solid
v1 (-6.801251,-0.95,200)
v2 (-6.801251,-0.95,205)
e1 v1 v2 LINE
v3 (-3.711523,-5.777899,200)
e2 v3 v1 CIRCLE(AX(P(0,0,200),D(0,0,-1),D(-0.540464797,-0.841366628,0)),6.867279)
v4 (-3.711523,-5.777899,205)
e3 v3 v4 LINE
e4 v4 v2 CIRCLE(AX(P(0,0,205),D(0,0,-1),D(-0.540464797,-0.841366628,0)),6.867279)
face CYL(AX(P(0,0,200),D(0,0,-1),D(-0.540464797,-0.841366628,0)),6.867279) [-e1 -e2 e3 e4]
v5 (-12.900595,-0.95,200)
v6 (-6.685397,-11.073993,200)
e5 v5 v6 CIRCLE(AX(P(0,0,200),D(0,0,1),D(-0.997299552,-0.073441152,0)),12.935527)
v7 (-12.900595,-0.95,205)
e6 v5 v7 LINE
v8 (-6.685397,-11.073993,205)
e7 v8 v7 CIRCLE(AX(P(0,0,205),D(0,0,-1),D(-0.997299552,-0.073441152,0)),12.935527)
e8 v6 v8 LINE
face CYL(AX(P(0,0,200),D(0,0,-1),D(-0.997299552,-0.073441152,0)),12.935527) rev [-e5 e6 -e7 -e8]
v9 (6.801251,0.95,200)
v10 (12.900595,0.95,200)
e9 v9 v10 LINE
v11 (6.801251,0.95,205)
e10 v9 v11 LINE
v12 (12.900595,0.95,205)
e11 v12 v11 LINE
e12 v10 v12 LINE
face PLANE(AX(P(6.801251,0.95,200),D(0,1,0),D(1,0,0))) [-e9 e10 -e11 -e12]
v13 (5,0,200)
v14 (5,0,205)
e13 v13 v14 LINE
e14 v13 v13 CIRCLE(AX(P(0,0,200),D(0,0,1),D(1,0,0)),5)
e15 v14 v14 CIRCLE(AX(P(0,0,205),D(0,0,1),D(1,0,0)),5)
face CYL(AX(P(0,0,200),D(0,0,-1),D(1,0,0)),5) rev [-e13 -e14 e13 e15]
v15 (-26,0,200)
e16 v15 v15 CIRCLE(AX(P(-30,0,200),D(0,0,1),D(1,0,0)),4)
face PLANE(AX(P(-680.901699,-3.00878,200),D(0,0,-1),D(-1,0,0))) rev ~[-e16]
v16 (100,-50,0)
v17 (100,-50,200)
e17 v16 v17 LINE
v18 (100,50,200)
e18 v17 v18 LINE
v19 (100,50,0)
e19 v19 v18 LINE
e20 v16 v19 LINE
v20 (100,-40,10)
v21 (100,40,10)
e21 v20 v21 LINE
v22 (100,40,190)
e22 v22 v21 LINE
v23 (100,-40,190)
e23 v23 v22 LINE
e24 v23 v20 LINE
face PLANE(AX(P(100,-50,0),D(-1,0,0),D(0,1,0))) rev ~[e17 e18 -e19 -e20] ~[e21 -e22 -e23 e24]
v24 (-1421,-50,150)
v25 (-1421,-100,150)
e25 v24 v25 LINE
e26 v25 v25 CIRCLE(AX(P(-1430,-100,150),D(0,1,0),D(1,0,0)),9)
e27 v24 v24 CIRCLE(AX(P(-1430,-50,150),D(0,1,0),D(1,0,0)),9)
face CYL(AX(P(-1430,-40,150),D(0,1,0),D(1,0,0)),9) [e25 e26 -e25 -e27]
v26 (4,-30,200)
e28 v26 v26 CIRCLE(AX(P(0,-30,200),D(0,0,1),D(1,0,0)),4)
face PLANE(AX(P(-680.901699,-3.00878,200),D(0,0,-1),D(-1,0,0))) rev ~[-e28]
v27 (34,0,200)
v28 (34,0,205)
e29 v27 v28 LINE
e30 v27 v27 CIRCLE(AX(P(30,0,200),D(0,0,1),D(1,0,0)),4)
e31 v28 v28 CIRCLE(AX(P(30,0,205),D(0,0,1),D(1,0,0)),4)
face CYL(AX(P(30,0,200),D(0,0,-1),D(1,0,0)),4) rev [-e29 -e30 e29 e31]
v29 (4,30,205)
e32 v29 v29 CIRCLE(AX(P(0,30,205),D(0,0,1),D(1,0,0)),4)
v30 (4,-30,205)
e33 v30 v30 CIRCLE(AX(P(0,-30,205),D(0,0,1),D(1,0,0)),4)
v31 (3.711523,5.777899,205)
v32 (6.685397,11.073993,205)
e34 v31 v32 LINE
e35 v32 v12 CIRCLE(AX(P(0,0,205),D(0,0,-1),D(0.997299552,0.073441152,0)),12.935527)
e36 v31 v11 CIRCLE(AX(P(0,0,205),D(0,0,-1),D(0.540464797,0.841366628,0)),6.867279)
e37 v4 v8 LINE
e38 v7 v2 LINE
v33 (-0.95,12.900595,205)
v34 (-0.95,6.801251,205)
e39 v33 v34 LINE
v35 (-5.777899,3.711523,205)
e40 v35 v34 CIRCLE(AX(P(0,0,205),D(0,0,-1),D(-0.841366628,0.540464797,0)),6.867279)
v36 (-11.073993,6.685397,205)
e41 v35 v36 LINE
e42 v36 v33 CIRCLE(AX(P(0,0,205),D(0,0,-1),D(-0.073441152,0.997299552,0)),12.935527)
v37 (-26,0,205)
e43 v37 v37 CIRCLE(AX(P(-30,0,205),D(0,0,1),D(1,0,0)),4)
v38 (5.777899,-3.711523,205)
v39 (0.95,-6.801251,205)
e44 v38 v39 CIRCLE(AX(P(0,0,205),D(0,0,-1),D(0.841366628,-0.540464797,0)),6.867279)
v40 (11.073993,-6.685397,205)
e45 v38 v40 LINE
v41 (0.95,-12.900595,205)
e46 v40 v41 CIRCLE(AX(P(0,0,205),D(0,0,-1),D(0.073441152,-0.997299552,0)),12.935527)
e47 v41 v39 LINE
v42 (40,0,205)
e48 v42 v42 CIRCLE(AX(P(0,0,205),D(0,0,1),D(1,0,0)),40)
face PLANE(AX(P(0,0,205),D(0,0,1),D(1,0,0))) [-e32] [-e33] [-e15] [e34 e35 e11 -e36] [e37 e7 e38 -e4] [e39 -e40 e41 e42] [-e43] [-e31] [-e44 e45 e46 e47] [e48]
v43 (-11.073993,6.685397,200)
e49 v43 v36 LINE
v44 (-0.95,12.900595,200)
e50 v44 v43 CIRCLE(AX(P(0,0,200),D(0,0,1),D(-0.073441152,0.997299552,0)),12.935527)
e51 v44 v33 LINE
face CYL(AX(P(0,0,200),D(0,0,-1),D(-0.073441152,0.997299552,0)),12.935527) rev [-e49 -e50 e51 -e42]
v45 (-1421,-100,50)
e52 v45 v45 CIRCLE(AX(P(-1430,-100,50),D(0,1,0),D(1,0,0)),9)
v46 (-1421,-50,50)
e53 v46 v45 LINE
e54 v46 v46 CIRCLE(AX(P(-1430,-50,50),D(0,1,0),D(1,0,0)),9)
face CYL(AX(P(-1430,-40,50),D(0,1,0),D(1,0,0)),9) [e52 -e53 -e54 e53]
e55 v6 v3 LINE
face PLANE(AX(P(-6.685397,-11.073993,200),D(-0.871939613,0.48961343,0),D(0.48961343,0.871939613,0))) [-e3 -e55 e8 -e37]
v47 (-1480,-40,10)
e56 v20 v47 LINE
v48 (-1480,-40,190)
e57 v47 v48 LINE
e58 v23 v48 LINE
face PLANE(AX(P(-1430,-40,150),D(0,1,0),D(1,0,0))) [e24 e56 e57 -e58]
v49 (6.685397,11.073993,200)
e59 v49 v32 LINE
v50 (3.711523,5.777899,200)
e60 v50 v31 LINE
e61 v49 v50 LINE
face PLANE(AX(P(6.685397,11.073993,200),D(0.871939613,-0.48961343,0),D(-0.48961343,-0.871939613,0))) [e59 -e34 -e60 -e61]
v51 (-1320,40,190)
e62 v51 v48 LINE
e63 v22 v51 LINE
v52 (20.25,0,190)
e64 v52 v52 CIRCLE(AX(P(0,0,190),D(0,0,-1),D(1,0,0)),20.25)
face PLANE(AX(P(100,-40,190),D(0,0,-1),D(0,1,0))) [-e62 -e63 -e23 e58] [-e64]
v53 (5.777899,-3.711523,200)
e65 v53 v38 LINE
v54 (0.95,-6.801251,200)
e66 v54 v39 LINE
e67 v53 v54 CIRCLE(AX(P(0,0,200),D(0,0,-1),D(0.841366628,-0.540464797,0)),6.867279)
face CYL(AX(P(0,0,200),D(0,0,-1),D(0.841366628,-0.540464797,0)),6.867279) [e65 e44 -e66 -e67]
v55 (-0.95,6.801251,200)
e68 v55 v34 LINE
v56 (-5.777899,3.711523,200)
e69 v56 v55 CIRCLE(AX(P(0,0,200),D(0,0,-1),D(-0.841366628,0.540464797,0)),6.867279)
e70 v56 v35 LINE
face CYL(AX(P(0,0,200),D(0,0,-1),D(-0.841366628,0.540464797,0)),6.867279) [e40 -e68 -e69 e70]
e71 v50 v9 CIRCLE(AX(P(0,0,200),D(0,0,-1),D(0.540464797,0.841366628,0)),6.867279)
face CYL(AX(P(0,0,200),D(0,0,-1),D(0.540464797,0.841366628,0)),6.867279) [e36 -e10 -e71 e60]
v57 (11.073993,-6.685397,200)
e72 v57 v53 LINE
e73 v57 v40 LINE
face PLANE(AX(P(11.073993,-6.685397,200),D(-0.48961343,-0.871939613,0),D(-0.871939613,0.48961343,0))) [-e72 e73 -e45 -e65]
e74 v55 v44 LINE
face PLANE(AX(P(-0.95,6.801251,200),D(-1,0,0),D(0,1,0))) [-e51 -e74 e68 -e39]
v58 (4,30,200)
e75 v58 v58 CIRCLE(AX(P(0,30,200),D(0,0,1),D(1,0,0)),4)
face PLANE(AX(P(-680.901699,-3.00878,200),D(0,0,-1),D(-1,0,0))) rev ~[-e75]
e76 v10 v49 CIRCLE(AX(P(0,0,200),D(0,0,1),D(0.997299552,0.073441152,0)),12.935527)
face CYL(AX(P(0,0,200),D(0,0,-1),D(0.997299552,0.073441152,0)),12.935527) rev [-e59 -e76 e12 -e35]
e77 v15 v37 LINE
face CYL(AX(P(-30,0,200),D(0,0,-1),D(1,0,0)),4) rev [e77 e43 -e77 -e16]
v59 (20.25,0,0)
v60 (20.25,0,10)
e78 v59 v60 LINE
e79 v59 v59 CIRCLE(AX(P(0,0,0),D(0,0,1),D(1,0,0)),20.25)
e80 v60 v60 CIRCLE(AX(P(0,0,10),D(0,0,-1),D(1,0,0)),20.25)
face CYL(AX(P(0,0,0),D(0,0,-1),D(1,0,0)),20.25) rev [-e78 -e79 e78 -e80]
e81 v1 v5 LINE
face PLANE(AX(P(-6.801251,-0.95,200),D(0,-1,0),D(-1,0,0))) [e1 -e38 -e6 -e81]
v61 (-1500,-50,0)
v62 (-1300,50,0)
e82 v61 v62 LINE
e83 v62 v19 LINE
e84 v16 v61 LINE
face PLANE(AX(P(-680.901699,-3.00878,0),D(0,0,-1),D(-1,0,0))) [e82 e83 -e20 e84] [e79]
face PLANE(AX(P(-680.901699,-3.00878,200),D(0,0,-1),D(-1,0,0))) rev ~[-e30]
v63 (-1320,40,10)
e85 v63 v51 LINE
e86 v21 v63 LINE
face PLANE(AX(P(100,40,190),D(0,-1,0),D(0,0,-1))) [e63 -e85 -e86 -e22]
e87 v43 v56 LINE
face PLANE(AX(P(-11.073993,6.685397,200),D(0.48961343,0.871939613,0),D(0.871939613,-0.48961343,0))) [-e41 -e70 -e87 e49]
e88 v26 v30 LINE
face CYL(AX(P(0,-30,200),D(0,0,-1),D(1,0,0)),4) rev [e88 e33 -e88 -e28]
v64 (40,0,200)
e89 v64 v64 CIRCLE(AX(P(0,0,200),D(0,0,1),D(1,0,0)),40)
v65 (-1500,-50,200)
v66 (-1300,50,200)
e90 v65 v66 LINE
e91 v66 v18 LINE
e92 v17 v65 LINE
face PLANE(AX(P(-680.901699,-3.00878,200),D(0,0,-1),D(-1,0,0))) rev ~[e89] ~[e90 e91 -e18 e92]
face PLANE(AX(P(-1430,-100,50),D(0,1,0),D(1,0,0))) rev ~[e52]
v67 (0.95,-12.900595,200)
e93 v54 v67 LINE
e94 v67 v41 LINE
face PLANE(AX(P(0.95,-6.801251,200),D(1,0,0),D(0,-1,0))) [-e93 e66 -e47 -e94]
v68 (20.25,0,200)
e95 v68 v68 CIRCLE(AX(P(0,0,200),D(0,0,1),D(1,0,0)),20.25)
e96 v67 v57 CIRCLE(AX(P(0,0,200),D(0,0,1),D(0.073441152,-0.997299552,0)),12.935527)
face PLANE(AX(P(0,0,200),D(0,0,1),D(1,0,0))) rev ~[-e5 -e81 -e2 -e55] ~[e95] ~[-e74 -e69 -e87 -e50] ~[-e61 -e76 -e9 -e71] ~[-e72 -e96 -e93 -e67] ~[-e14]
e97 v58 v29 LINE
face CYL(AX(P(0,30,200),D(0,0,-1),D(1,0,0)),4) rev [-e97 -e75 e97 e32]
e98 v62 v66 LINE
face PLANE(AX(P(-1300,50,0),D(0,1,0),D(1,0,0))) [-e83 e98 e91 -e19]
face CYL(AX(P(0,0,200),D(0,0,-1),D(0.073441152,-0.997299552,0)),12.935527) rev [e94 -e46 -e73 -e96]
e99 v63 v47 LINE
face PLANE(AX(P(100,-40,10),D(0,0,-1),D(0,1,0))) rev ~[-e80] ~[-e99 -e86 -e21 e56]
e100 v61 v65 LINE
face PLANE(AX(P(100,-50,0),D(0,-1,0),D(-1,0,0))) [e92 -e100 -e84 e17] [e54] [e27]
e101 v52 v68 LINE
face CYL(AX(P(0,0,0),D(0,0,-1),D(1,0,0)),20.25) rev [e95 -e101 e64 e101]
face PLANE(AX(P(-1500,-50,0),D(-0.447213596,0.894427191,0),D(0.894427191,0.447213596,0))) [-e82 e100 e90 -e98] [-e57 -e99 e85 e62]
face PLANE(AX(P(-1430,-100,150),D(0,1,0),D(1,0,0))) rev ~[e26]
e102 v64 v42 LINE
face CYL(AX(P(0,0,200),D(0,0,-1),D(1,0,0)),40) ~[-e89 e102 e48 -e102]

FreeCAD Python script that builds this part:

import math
import FreeCAD as App
import Part
import Sketcher
from FreeCAD import Vector
Q = App.Units.Quantity


def add_polygon(sketch, points):
    """Adds a closed chain of lines whose ends are joined by coincident constraints."""
    first, n = sketch.GeometryCount, len(points)
    for a, b in zip(points, points[1:] + points[:1]):
        sketch.addGeometry(Part.LineSegment(App.Vector(*a, 0), App.Vector(*b, 0)), False)
    for i in range(n):
        sketch.addConstraint(Sketcher.Constraint("Coincident", first + i, 2, first + (i + 1) % n, 1))

doc = App.newDocument("Part")
body = doc.addObject("PartDesign::Body", "Body")

# Sketch on XY plane
sketch1 = body.newObject("Sketcher::SketchObject", "Sketch")
sketch1.AttachmentSupport = (doc.getObject("XY_Plane"), [""])
sketch1.MapMode = "FlatFace"
add_polygon(sketch1, [(100, -50), (100, 50), (-1300, 50), (-1500, -50)])  # lines 0-3
sketch1.addGeometry(Part.Circle(Vector(0, 0, 0), Vector(0, 0, 1), 20), False)  # 4
sketch1.addConstraint([
    Sketcher.Constraint("Vertical", 0),
    Sketcher.Constraint("Horizontal", 1),
    Sketcher.Constraint("Horizontal", 3),
    Sketcher.Constraint("Coincident", 4, 3, -1, 1),
    Sketcher.Constraint("Diameter", 4, Q("40.5 mm")),
    Sketcher.Constraint("DistanceX", 1, 2, 1, 1, Q("1400 mm")),
    Sketcher.Constraint("DistanceX", 3, 1, 3, 2, Q("1600 mm")),
    Sketcher.Constraint("DistanceY", 0, 1, 0, 2, Q("100 mm")),
    Sketcher.Constraint("DistanceX", -1, 1, 0, 2, Q("100 mm")),
    Sketcher.Constraint("DistanceY", -1, 1, 0, 2, Q("50 mm")),
])
pad1 = body.newObject("PartDesign::Pad", "Pad")
pad1.Profile = sketch1
pad1.Length = 200

# Sketch on XY plane
sketch2 = body.newObject("Sketcher::SketchObject", "Sketch001")
sketch2.AttachmentSupport = (doc.getObject("XY_Plane"), [""])
sketch2.MapMode = "FlatFace"
sketch2.AttachmentOffset = App.Placement(Vector(0, 0, 200), App.Rotation())
sketch2.addGeometry([
    Part.Circle(Vector(0, 0, 0), Vector(0, 0, 1), 40),  # 0
    Part.Circle(Vector(0, -30, 0), Vector(0, 0, 1), 4),  # 1
    Part.Circle(Vector(-30, 0, 0), Vector(0, 0, 1), 4),  # 2
    Part.Circle(Vector(0, 0, 0), Vector(0, 0, 1), 5),  # 3
    Part.Circle(Vector(30, 0, 0), Vector(0, 0, 1), 4),  # 4
    Part.Circle(Vector(0, 30, 0), Vector(0, 0, 1), 4),  # 5
], False)
sketch2.addConstraint([
    Sketcher.Constraint("Coincident", 0, 3, -1, 1),
    Sketcher.Constraint("Coincident", 3, 3, -1, 1),
    Sketcher.Constraint("Equal", 1, 2),
    Sketcher.Constraint("Equal", 2, 4),
    Sketcher.Constraint("Equal", 4, 5),
    Sketcher.Constraint("Symmetric", 2, 3, 4, 3, -1, 1),
    Sketcher.Constraint("Symmetric", 1, 3, 5, 3, -1, 1),
    Sketcher.Constraint("PointOnObject", 1, 3, -2),
    Sketcher.Constraint("PointOnObject", 2, 3, -1),
    Sketcher.Constraint("Diameter", 0, Q("80 mm")),
    Sketcher.Constraint("Diameter", 1, Q("8 mm")),
    Sketcher.Constraint("Diameter", 3, Q("10 mm")),
    Sketcher.Constraint("DistanceY", 1, 3, -1, 1, Q("30 mm")),
    Sketcher.Constraint("DistanceX", 2, 3, -1, 1, Q("30 mm")),
])
pad2 = body.newObject("PartDesign::Pad", "Pad001")
pad2.Profile = sketch2
pad2.Length = 5

# Sketch on XY plane
sketch3 = body.newObject("Sketcher::SketchObject", "Sketch002")
sketch3.AttachmentSupport = (doc.getObject("XY_Plane"), [""])
sketch3.MapMode = "FlatFace"
sketch3.AttachmentOffset = App.Placement(Vector(0, 0, 200), App.Rotation())
sketch3.addGeometry([
    Part.LineSegment(Vector(-1, 7, 0), Vector(-1, 13, 0)),  # 0
    Part.ArcOfCircle(Part.Circle(Vector(0, 0, 0), Vector(0, 0, 1), 13), math.radians(94), math.radians(149)),  # 1
    Part.LineSegment(Vector(-11, 7, 0), Vector(-6, 4, 0)),  # 2
    Part.ArcOfCircle(Part.Circle(Vector(0, 0, 0), Vector(0, 0, 1), 7), math.radians(98), math.radians(147)),  # 3
    Part.LineSegment(Vector(7, 1, 0), Vector(13, 1, 0)),  # 4
    Part.ArcOfCircle(Part.Circle(Vector(0, 0, 0), Vector(0, 0, 1), 13), math.radians(4), math.radians(59)),  # 5
    Part.LineSegment(Vector(7, 11, 0), Vector(4, 6, 0)),  # 6
    Part.ArcOfCircle(Part.Circle(Vector(0, 0, 0), Vector(0, 0, 1), 7), math.radians(8), math.radians(57)),  # 7
    Part.LineSegment(Vector(1, -7, 0), Vector(1, -13, 0)),  # 8
    Part.ArcOfCircle(Part.Circle(Vector(0, 0, 0), Vector(0, 0, 1), 13), math.radians(-86), math.radians(-31)),  # 9
    Part.LineSegment(Vector(11, -7, 0), Vector(6, -4, 0)),  # 10
    Part.ArcOfCircle(Part.Circle(Vector(0, 0, 0), Vector(0, 0, 1), 7), math.radians(-82), math.radians(-33)),  # 11
    Part.LineSegment(Vector(-7, -1, 0), Vector(-13, -1, 0)),  # 12
    Part.ArcOfCircle(Part.Circle(Vector(0, 0, 0), Vector(0, 0, 1), 13), math.radians(-176), math.radians(-121)),  # 13
    Part.LineSegment(Vector(-7, -11, 0), Vector(-4, -6, 0)),  # 14
    Part.ArcOfCircle(Part.Circle(Vector(0, 0, 0), Vector(0, 0, 1), 7), math.radians(-172), math.radians(-123)),  # 15
], False)
sketch3.addConstraint([
    Sketcher.Constraint("Coincident", 0, 2, 1, 1),
    Sketcher.Constraint("Coincident", 1, 2, 2, 1),
    Sketcher.Constraint("Coincident", 2, 2, 3, 2),
    Sketcher.Constraint("Coincident", 3, 1, 0, 1),
    Sketcher.Constraint("Coincident", 4, 2, 5, 1),
    Sketcher.Constraint("Coincident", 5, 2, 6, 1),
    Sketcher.Constraint("Coincident", 6, 2, 7, 2),
    Sketcher.Constraint("Coincident", 7, 1, 4, 1),
    Sketcher.Constraint("Coincident", 8, 2, 9, 1),
    Sketcher.Constraint("Coincident", 9, 2, 10, 1),
    Sketcher.Constraint("Coincident", 10, 2, 11, 2),
    Sketcher.Constraint("Coincident", 11, 1, 8, 1),
    Sketcher.Constraint("Coincident", 12, 2, 13, 1),
    Sketcher.Constraint("Coincident", 13, 2, 14, 1),
    Sketcher.Constraint("Coincident", 14, 2, 15, 2),
    Sketcher.Constraint("Coincident", 15, 1, 12, 1),
    Sketcher.Constraint("Vertical", 0),
    Sketcher.Constraint("Horizontal", 4),
    Sketcher.Constraint("Vertical", 8),
    Sketcher.Constraint("Horizontal", 12),
    Sketcher.Constraint("Coincident", 1, 3, -1, 1),
    Sketcher.Constraint("Coincident", 3, 3, -1, 1),
    Sketcher.Constraint("Coincident", 5, 3, -1, 1),
    Sketcher.Constraint("Coincident", 7, 3, -1, 1),
    Sketcher.Constraint("Coincident", 9, 3, -1, 1),
    Sketcher.Constraint("Coincident", 11, 3, -1, 1),
    Sketcher.Constraint("Coincident", 13, 3, -1, 1),
    Sketcher.Constraint("Coincident", 15, 3, -1, 1),
    Sketcher.Constraint("Equal", 1, 5),
    Sketcher.Constraint("Equal", 3, 7),
    Sketcher.Constraint("Equal", 5, 9),
    Sketcher.Constraint("Equal", 7, 11),
    Sketcher.Constraint("Equal", 9, 13),
    Sketcher.Constraint("Equal", 11, 15),
    Sketcher.Constraint("Perpendicular", 2, 6),
    Sketcher.Constraint("Perpendicular", 6, 10),
    Sketcher.Constraint("Perpendicular", 10, 14),
    Sketcher.Constraint("Equal", 4, 12),
    Sketcher.Constraint("Equal", 12, 0),
    Sketcher.Constraint("Equal", 0, 8),
    Sketcher.Constraint("Equal", 2, 6),
    Sketcher.Constraint("Equal", 6, 10),
    Sketcher.Constraint("Equal", 10, 14),
    Sketcher.Constraint("DistanceX", 0, 2, -1, 1, Q("0.95 mm")),
    Sketcher.Constraint("Radius", 3, Q("6.867279 mm")),
    Sketcher.Constraint("Radius", 1, Q("12.935527 mm")),
    Sketcher.Constraint("DistanceX", 2, 2, -1, 1, Q("5.777899 mm")),
    Sketcher.Constraint("DistanceY", 1, 2, 0, 2, Q("6.215199 mm")),
])
pocket1 = body.newObject("PartDesign::Pocket", "Pocket")
pocket1.Profile = sketch3
pocket1.Type = "ThroughAll"
pocket1.Midplane = True

# Sketch on YZ plane
sketch4 = body.newObject("Sketcher::SketchObject", "Sketch003")
sketch4.AttachmentSupport = (doc.getObject("YZ_Plane"), [""])
sketch4.MapMode = "FlatFace"
sketch4.AttachmentOffset = App.Placement(Vector(0, 0, 100), App.Rotation())
add_polygon(sketch4, [(40, 190), (-40, 190), (-40, 10), (40, 10)])  # lines 0-3
sketch4.addConstraint([
    Sketcher.Constraint("Horizontal", 0),
    Sketcher.Constraint("Vertical", 1),
    Sketcher.Constraint("Horizontal", 2),
    Sketcher.Constraint("Vertical", 3),
    Sketcher.Constraint("DistanceX", 0, 2, 0, 1, Q("80 mm")),
    Sketcher.Constraint("DistanceY", 1, 2, 1, 1, Q("180 mm")),
    Sketcher.Constraint("DistanceX", 0, 2, -1, 1, Q("40 mm")),
    Sketcher.Constraint("DistanceY", -1, 1, 0, 2, Q("190 mm")),
])
pocket2 = body.newObject("PartDesign::Pocket", "Pocket001")
pocket2.Profile = sketch4
pocket2.Type = "ThroughAll"

# Sketch on XZ plane
sketch5 = body.newObject("Sketcher::SketchObject", "Sketch004")
sketch5.AttachmentSupport = (doc.getObject("XZ_Plane"), [""])
sketch5.MapMode = "FlatFace"
sketch5.AttachmentOffset = App.Placement(Vector(0, 0, 40), App.Rotation())
sketch5.addGeometry([
    Part.Circle(Vector(-1430, 150, 0), Vector(0, 0, 1), 9),
    Part.Circle(Vector(-1430, 50, 0), Vector(0, 0, 1), 9),
], False)
sketch5.addConstraint([
    Sketcher.Constraint("Equal", 0, 1),
    Sketcher.Constraint("Vertical", 0, 3, 1, 3),
    Sketcher.Constraint("Diameter", 0, Q("18 mm")),
    Sketcher.Constraint("DistanceX", 0, 3, -1, 1, Q("1430 mm")),
    Sketcher.Constraint("DistanceY", -1, 1, 0, 3, Q("150 mm")),
    Sketcher.Constraint("DistanceY", -1, 1, 1, 3, Q("50 mm")),
])
pad3 = body.newObject("PartDesign::Pad", "Pad002")
pad3.Profile = sketch5
pad3.Length = 60

doc.recompute()
